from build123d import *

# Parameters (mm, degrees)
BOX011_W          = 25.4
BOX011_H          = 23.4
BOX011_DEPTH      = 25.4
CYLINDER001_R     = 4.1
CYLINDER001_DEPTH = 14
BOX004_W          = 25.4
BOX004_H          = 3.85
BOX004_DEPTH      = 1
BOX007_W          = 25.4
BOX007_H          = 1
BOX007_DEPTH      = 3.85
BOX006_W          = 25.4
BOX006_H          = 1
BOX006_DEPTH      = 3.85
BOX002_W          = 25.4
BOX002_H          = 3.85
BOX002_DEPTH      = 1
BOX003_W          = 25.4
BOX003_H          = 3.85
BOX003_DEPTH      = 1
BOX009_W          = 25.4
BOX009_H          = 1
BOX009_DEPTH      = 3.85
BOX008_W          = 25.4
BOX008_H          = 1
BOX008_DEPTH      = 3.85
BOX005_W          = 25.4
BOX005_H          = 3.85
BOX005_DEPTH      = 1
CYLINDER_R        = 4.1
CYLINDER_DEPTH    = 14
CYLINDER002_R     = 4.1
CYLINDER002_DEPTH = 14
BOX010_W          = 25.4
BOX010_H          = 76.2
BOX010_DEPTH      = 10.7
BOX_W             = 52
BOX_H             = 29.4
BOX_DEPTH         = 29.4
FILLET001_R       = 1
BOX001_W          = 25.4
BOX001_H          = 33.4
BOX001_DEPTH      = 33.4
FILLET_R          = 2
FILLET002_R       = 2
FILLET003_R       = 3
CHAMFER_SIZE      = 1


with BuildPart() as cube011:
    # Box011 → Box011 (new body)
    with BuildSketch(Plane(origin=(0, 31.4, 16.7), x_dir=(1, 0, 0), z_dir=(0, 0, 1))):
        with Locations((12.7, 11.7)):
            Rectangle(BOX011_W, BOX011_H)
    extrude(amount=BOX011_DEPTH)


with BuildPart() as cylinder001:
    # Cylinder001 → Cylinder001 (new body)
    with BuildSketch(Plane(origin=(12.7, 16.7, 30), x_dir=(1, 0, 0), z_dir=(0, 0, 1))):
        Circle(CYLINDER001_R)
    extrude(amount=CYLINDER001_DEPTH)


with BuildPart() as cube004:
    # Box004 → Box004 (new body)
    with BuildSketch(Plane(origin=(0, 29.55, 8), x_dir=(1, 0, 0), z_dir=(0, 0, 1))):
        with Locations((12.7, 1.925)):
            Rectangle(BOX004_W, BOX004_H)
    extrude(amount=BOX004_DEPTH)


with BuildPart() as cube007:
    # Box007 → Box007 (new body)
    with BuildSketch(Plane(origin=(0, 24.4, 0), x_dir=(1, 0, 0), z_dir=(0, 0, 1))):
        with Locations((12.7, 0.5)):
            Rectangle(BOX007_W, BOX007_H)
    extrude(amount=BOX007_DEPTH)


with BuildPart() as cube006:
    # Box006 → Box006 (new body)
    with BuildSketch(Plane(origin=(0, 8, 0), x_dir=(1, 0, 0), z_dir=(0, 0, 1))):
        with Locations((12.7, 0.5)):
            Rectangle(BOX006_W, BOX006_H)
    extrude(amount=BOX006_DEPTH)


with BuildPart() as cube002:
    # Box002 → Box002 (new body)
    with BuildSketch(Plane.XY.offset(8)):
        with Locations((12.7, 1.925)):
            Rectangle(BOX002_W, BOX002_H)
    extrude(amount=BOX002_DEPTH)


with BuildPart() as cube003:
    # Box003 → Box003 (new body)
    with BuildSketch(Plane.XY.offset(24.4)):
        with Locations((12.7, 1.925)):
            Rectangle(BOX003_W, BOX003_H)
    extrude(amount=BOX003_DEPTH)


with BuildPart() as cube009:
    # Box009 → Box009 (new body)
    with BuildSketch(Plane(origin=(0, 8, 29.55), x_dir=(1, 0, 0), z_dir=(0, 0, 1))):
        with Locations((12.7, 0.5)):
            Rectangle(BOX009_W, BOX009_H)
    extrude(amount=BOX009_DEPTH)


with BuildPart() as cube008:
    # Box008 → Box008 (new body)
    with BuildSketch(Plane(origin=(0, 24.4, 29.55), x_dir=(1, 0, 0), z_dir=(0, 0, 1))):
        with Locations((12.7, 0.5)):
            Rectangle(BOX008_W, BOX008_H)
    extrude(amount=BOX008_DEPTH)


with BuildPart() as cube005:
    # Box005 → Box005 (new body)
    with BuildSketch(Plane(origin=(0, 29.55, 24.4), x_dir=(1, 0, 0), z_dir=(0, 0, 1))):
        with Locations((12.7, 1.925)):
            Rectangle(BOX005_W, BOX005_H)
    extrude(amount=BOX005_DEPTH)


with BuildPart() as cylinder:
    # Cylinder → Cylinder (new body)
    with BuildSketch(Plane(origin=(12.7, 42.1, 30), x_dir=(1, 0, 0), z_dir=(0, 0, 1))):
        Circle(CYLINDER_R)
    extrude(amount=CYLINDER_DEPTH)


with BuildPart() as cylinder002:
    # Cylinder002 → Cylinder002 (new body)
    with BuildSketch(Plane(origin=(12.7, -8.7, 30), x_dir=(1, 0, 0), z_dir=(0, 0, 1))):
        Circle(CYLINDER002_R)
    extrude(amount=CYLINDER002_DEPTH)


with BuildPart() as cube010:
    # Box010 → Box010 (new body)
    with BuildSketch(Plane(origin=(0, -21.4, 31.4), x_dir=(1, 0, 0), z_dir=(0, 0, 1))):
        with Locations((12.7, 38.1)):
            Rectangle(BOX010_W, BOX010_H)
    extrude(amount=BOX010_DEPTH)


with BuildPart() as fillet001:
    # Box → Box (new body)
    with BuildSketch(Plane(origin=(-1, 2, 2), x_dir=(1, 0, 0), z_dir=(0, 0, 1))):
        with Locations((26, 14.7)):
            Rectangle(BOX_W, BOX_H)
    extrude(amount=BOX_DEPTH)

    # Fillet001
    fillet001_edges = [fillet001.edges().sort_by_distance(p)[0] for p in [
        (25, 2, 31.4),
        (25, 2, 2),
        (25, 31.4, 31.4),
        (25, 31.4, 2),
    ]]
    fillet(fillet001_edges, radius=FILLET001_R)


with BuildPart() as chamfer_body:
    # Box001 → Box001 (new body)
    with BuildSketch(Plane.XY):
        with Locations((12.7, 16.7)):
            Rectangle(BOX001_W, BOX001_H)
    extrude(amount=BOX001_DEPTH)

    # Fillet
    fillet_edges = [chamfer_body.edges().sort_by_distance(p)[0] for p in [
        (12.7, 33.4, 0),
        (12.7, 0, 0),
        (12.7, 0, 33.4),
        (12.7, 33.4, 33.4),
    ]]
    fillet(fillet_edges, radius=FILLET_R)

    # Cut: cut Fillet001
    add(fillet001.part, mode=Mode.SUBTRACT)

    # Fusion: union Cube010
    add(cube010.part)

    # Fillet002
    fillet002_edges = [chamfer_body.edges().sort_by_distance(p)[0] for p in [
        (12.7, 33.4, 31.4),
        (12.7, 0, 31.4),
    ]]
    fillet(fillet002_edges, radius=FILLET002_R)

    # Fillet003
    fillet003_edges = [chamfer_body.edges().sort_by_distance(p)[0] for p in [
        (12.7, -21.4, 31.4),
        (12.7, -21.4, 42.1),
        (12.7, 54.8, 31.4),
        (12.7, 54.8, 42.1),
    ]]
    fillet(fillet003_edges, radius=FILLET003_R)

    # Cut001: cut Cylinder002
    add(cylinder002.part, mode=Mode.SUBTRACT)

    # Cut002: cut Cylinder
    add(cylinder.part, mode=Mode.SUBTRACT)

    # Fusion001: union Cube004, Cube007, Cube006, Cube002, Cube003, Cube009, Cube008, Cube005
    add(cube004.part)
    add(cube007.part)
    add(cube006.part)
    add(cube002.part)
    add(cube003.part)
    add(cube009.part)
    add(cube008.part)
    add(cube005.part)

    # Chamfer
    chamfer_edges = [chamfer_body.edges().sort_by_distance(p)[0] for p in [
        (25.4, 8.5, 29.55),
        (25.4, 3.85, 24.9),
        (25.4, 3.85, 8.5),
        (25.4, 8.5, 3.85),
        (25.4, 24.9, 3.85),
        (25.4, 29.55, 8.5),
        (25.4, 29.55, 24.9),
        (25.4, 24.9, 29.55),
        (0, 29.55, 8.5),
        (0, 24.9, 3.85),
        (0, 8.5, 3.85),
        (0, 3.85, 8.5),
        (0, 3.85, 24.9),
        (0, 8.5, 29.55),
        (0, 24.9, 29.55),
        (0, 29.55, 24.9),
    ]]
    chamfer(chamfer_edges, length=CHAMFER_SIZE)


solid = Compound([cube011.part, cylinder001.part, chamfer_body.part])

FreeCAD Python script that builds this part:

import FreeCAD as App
import Part
import Sketcher

V = App.Vector
Q = App.Units.Quantity


def edges_at(feature, points):
    """Names of the edges that pass closest to the given points."""
    edges = feature.Shape.Edges
    near = lambda p: min(range(len(edges)), key=lambda i: edges[i].distToShape(Part.Vertex(*p))[0])
    return sorted({f"Edge{near(p) + 1}" for p in points})


def add_polygon(sketch, points):
    """Adds a closed chain of lines whose ends are joined by coincident constraints."""
    first, n = sketch.GeometryCount, len(points)
    for a, b in zip(points, points[1:] + points[:1]):
        sketch.addGeometry(Part.LineSegment(App.Vector(*a, 0), App.Vector(*b, 0)), False)
    for i in range(n):
        sketch.addConstraint(Sketcher.Constraint("Coincident", first + i, 2, first + (i + 1) % n, 1))

doc = App.newDocument("Part")
body = doc.addObject("PartDesign::Body", "Body")

# Sketch on XY plane
sketch1 = body.newObject("Sketcher::SketchObject", "Sketch")
sketch1.AttachmentSupport = (doc.getObject("XY_Plane"), [""])
sketch1.MapMode = "FlatFace"
sketch1.AttachmentOffset = App.Placement(V(0, 0, 16.7), App.Rotation())
add_polygon(sketch1, [(0, 55), (0, 31), (25, 31), (25, 55)])  # lines 0-3
sketch1.addConstraint(Sketcher.Constraint("Vertical", 0))
sketch1.addConstraint(Sketcher.Constraint("Horizontal", 1))
sketch1.addConstraint(Sketcher.Constraint("Vertical", 2))
sketch1.addConstraint(Sketcher.Constraint("Horizontal", 3))
sketch1.addConstraint(Sketcher.Constraint("PointOnObject", 0, 2, -2))
sketch1.addConstraint(Sketcher.Constraint("DistanceX", 1, 1, 1, 2, Q("25.4 mm")))
sketch1.addConstraint(Sketcher.Constraint("DistanceY", 0, 2, 0, 1, Q("23.4 mm")))
sketch1.addConstraint(Sketcher.Constraint("DistanceY", -1, 1, 0, 2, Q("31.4 mm")))
pad1 = body.newObject("PartDesign::Pad", "Pad")
pad1.Profile = sketch1
pad1.Length = 25.4
body2 = doc.addObject("PartDesign::Body", "Body001")

# Sketch on XY plane
sketch2 = body2.newObject("Sketcher::SketchObject", "Sketch001")
sketch2.AttachmentSupport = (doc.getObject("XY_Plane001"), [""])
sketch2.MapMode = "FlatFace"
sketch2.AttachmentOffset = App.Placement(V(0, 0, 30), App.Rotation())
sketch2.addGeometry(Part.Circle(V(12.7, 16.7, 0), V(0, 0, 1), 4.1), False)
sketch2.addConstraint(Sketcher.Constraint("Diameter", 0, Q("8.2 mm")))
sketch2.addConstraint(Sketcher.Constraint("DistanceX", -1, 1, 0, 3, Q("12.7 mm")))
sketch2.addConstraint(Sketcher.Constraint("DistanceY", -1, 1, 0, 3, Q("16.7 mm")))
pad2 = body2.newObject("PartDesign::Pad", "Pad001")
pad2.Profile = sketch2
pad2.Length = 14
body3 = doc.addObject("PartDesign::Body", "Body002")

# Sketch on XY plane
sketch3 = body3.newObject("Sketcher::SketchObject", "Sketch002")
sketch3.AttachmentSupport = (doc.getObject("XY_Plane002"), [""])
sketch3.MapMode = "FlatFace"
sketch3.AttachmentOffset = App.Placement(V(0, 0, 8), App.Rotation())
add_polygon(sketch3, [(0, 33.4), (0, 29.6), (25.4, 29.6), (25.4, 33.4)])  # lines 0-3
sketch3.addConstraint(Sketcher.Constraint("Vertical", 0))
sketch3.addConstraint(Sketcher.Constraint("Horizontal", 1))
sketch3.addConstraint(Sketcher.Constraint("Vertical", 2))
sketch3.addConstraint(Sketcher.Constraint("Horizontal", 3))
sketch3.addConstraint(Sketcher.Constraint("PointOnObject", 0, 2, -2))
sketch3.addConstraint(Sketcher.Constraint("DistanceX", 1, 1, 1, 2, Q("25.4 mm")))
sketch3.addConstraint(Sketcher.Constraint("DistanceY", 0, 2, 0, 1, Q("3.85 mm")))
sketch3.addConstraint(Sketcher.Constraint("DistanceY", -1, 1, 2, 2, Q("33.4 mm")))
pad3 = body3.newObject("PartDesign::Pad", "Pad002")
pad3.Profile = sketch3
pad3.Length = 1
body4 = doc.addObject("PartDesign::Body", "Body003")

# Sketch on XY plane
sketch4 = body4.newObject("Sketcher::SketchObject", "Sketch003")
sketch4.AttachmentSupport = (doc.getObject("XY_Plane003"), [""])
sketch4.MapMode = "FlatFace"
add_polygon(sketch4, [(0, 25.4), (0, 24.4), (25.4, 24.4), (25.4, 25.4)])  # lines 0-3
sketch4.addConstraint(Sketcher.Constraint("Vertical", 0))
sketch4.addConstraint(Sketcher.Constraint("Horizontal", 1))
sketch4.addConstraint(Sketcher.Constraint("Vertical", 2))
sketch4.addConstraint(Sketcher.Constraint("Horizontal", 3))
sketch4.addConstraint(Sketcher.Constraint("PointOnObject", 0, 2, -2))
sketch4.addConstraint(Sketcher.Constraint("DistanceY", 0, 2, 0, 1, Q("1 mm")))
sketch4.addConstraint(Sketcher.Constraint("DistanceX", 1, 1, 1, 2, Q("25.4 mm")))
sketch4.addConstraint(Sketcher.Constraint("DistanceY", -1, 1, 0, 2, Q("24.4 mm")))
pad4 = body4.newObject("PartDesign::Pad", "Pad003")
pad4.Profile = sketch4
pad4.Length = 3.85
body5 = doc.addObject("PartDesign::Body", "Body004")

# Sketch on XY plane
sketch5 = body5.newObject("Sketcher::SketchObject", "Sketch004")
sketch5.AttachmentSupport = (doc.getObject("XY_Plane004"), [""])
sketch5.MapMode = "FlatFace"
add_polygon(sketch5, [(0, 9), (0, 8), (25.4, 8), (25.4, 9)])  # lines 0-3
sketch5.addConstraint(Sketcher.Constraint("Vertical", 0))
sketch5.addConstraint(Sketcher.Constraint("Horizontal", 1))
sketch5.addConstraint(Sketcher.Constraint("Vertical", 2))
sketch5.addConstraint(Sketcher.Constraint("Horizontal", 3))
sketch5.addConstraint(Sketcher.Constraint("PointOnObject", 0, 2, -2))
sketch5.addConstraint(Sketcher.Constraint("DistanceY", 0, 2, 0, 1, Q("1 mm")))
sketch5.addConstraint(Sketcher.Constraint("DistanceX", 1, 1, 1, 2, Q("25.4 mm")))
sketch5.addConstraint(Sketcher.Constraint("DistanceY", -1, 1, 0, 2, Q("8 mm")))
pad5 = body5.newObject("PartDesign::Pad", "Pad004")
pad5.Profile = sketch5
pad5.Length = 3.85
body6 = doc.addObject("PartDesign::Body", "Body005")

# Sketch on XY plane
sketch6 = body6.newObject("Sketcher::SketchObject", "Sketch005")
sketch6.AttachmentSupport = (doc.getObject("XY_Plane005"), [""])
sketch6.MapMode = "FlatFace"
sketch6.AttachmentOffset = App.Placement(V(0, 0, 8), App.Rotation())
add_polygon(sketch6, [(0, 3.9), (0, 0), (25.4, 0), (25.4, 3.9)])  # lines 0-3
sketch6.addConstraint(Sketcher.Constraint("Vertical", 0))
sketch6.addConstraint(Sketcher.Constraint("Horizontal", 1))
sketch6.addConstraint(Sketcher.Constraint("Vertical", 2))
sketch6.addConstraint(Sketcher.Constraint("Horizontal", 3))
sketch6.addConstraint(Sketcher.Constraint("Coincident", 0, 2, -1, 1))
sketch6.addConstraint(Sketcher.Constraint("DistanceX", 1, 1, 1, 2, Q("25.4 mm")))
sketch6.addConstraint(Sketcher.Constraint("DistanceY", 0, 2, 0, 1, Q("3.85 mm")))
pad6 = body6.newObject("PartDesign::Pad", "Pad005")
pad6.Profile = sketch6
pad6.Length = 1
body7 = doc.addObject("PartDesign::Body", "Body006")

# Sketch on XY plane
sketch7 = body7.newObject("Sketcher::SketchObject", "Sketch006")
sketch7.AttachmentSupport = (doc.getObject("XY_Plane006"), [""])
sketch7.MapMode = "FlatFace"
sketch7.AttachmentOffset = App.Placement(V(0, 0, 24.4), App.Rotation())
add_polygon(sketch7, [(0, 3.9), (0, 0), (25.4, 0), (25.4, 3.9)])  # lines 0-3
sketch7.addConstraint(Sketcher.Constraint("Vertical", 0))
sketch7.addConstraint(Sketcher.Constraint("Horizontal", 1))
sketch7.addConstraint(Sketcher.Constraint("Vertical", 2))
sketch7.addConstraint(Sketcher.Constraint("Horizontal", 3))
sketch7.addConstraint(Sketcher.Constraint("Coincident", 0, 2, -1, 1))
sketch7.addConstraint(Sketcher.Constraint("DistanceX", 1, 1, 1, 2, Q("25.4 mm")))
sketch7.addConstraint(Sketcher.Constraint("DistanceY", 0, 2, 0, 1, Q("3.85 mm")))
pad7 = body7.newObject("PartDesign::Pad", "Pad006")
pad7.Profile = sketch7
pad7.Length = 1
body8 = doc.addObject("PartDesign::Body", "Body007")

# Sketch on XY plane
sketch8 = body8.newObject("Sketcher::SketchObject", "Sketch007")
sketch8.AttachmentSupport = (doc.getObject("XY_Plane007"), [""])
sketch8.MapMode = "FlatFace"
sketch8.AttachmentOffset = App.Placement(V(0, 0, 29.55), App.Rotation())
add_polygon(sketch8, [(0, 9), (0, 8), (25.4, 8), (25.4, 9)])  # lines 0-3
sketch8.addConstraint(Sketcher.Constraint("Vertical", 0))
sketch8.addConstraint(Sketcher.Constraint("Horizontal", 1))
sketch8.addConstraint(Sketcher.Constraint("Vertical", 2))
sketch8.addConstraint(Sketcher.Constraint("Horizontal", 3))
sketch8.addConstraint(Sketcher.Constraint("PointOnObject", 0, 2, -2))
sketch8.addConstraint(Sketcher.Constraint("DistanceY", 0, 2, 0, 1, Q("1 mm")))
sketch8.addConstraint(Sketcher.Constraint("DistanceX", 1, 1, 1, 2, Q("25.4 mm")))
sketch8.addConstraint(Sketcher.Constraint("DistanceY", -1, 1, 0, 2, Q("8 mm")))
pad8 = body8.newObject("PartDesign::Pad", "Pad007")
pad8.Profile = sketch8
pad8.Length = 3.85
body9 = doc.addObject("PartDesign::Body", "Body008")

# Sketch on XY plane
sketch9 = body9.newObject("Sketcher::SketchObject", "Sketch008")
sketch9.AttachmentSupport = (doc.getObject("XY_Plane008"), [""])
sketch9.MapMode = "FlatFace"
sketch9.AttachmentOffset = App.Placement(V(0, 0, 29.55), App.Rotation())
add_polygon(sketch9, [(0, 25.4), (0, 24.4), (25.4, 24.4), (25.4, 25.4)])  # lines 0-3
sketch9.addConstraint(Sketcher.Constraint("Vertical", 0))
sketch9.addConstraint(Sketcher.Constraint("Horizontal", 1))
sketch9.addConstraint(Sketcher.Constraint("Vertical", 2))
sketch9.addConstraint(Sketcher.Constraint("Horizontal", 3))
sketch9.addConstraint(Sketcher.Constraint("PointOnObject", 0, 2, -2))
sketch9.addConstraint(Sketcher.Constraint("DistanceY", 0, 2, 0, 1, Q("1 mm")))
sketch9.addConstraint(Sketcher.Constraint("DistanceX", 1, 1, 1, 2, Q("25.4 mm")))
sketch9.addConstraint(Sketcher.Constraint("DistanceY", -1, 1, 0, 2, Q("24.4 mm")))
pad9 = body9.newObject("PartDesign::Pad", "Pad008")
pad9.Profile = sketch9
pad9.Length = 3.85
body10 = doc.addObject("PartDesign::Body", "Body009")

# Sketch on XY plane
sketch10 = body10.newObject("Sketcher::SketchObject", "Sketch009")
sketch10.AttachmentSupport = (doc.getObject("XY_Plane009"), [""])
sketch10.MapMode = "FlatFace"
sketch10.AttachmentOffset = App.Placement(V(0, 0, 24.4), App.Rotation())
add_polygon(sketch10, [(0, 33.4), (0, 29.6), (25.4, 29.6), (25.4, 33.4)])  # lines 0-3
sketch10.addConstraint(Sketcher.Constraint("Vertical", 0))
sketch10.addConstraint(Sketcher.Constraint("Horizontal", 1))
sketch10.addConstraint(Sketcher.Constraint("Vertical", 2))
sketch10.addConstraint(Sketcher.Constraint("Horizontal", 3))
sketch10.addConstraint(Sketcher.Constraint("PointOnObject", 0, 2, -2))
sketch10.addConstraint(Sketcher.Constraint("DistanceX", 1, 1, 1, 2, Q("25.4 mm")))
sketch10.addConstraint(Sketcher.Constraint("DistanceY", 0, 2, 0, 1, Q("3.85 mm")))
sketch10.addConstraint(Sketcher.Constraint("DistanceY", -1, 1, 2, 2, Q("33.4 mm")))
pad10 = body10.newObject("PartDesign::Pad", "Pad009")
pad10.Profile = sketch10
pad10.Length = 1
body11 = doc.addObject("PartDesign::Body", "Body010")

# Sketch on XY plane
sketch11 = body11.newObject("Sketcher::SketchObject", "Sketch010")
sketch11.AttachmentSupport = (doc.getObject("XY_Plane010"), [""])
sketch11.MapMode = "FlatFace"
sketch11.AttachmentOffset = App.Placement(V(0, 0, 30), App.Rotation())
sketch11.addGeometry(Part.Circle(V(12.7, 42.1, 0), V(0, 0, 1), 4.1), False)
sketch11.addConstraint(Sketcher.Constraint("Diameter", 0, Q("8.2 mm")))
sketch11.addConstraint(Sketcher.Constraint("DistanceX", -1, 1, 0, 3, Q("12.7 mm")))
sketch11.addConstraint(Sketcher.Constraint("DistanceY", -1, 1, 0, 3, Q("42.1 mm")))
pad11 = body11.newObject("PartDesign::Pad", "Pad010")
pad11.Profile = sketch11
pad11.Length = 14
body12 = doc.addObject("PartDesign::Body", "Body011")

# Sketch on XY plane
sketch12 = body12.newObject("Sketcher::SketchObject", "Sketch011")
sketch12.AttachmentSupport = (doc.getObject("XY_Plane011"), [""])
sketch12.MapMode = "FlatFace"
sketch12.AttachmentOffset = App.Placement(V(0, 0, 30), App.Rotation())
sketch12.addGeometry(Part.Circle(V(12.7, -8.7, 0), V(0, 0, 1), 4.1), False)
sketch12.addConstraint(Sketcher.Constraint("Diameter", 0, Q("8.2 mm")))
sketch12.addConstraint(Sketcher.Constraint("DistanceX", -1, 1, 0, 3, Q("12.7 mm")))
sketch12.addConstraint(Sketcher.Constraint("DistanceY", 0, 3, -1, 1, Q("8.7 mm")))
pad12 = body12.newObject("PartDesign::Pad", "Pad011")
pad12.Profile = sketch12
pad12.Length = 14
body13 = doc.addObject("PartDesign::Body", "Body012")

# Sketch on XY plane
sketch13 = body13.newObject("Sketcher::SketchObject", "Sketch012")
sketch13.AttachmentSupport = (doc.getObject("XY_Plane012"), [""])
sketch13.MapMode = "FlatFace"
sketch13.AttachmentOffset = App.Placement(V(0, 0, 31.4), App.Rotation())
add_polygon(sketch13, [(0, 55), (0, -21), (25, -21), (25, 55)])  # lines 0-3
sketch13.addConstraint(Sketcher.Constraint("Vertical", 0))
sketch13.addConstraint(Sketcher.Constraint("Horizontal", 1))
sketch13.addConstraint(Sketcher.Constraint("Vertical", 2))
sketch13.addConstraint(Sketcher.Constraint("Horizontal", 3))
sketch13.addConstraint(Sketcher.Constraint("PointOnObject", 0, 2, -2))
sketch13.addConstraint(Sketcher.Constraint("DistanceX", 1, 1, 1, 2, Q("25.4 mm")))
sketch13.addConstraint(Sketcher.Constraint("DistanceY", 0, 2, 0, 1, Q("76.2 mm")))
sketch13.addConstraint(Sketcher.Constraint("DistanceY", 0, 2, -1, 1, Q("21.4 mm")))
pad13 = body13.newObject("PartDesign::Pad", "Pad012")
pad13.Profile = sketch13
pad13.Length = 10.7
body14 = doc.addObject("PartDesign::Body", "Body013")

# Sketch on XY plane
sketch14 = body14.newObject("Sketcher::SketchObject", "Sketch013")
sketch14.AttachmentSupport = (doc.getObject("XY_Plane013"), [""])
sketch14.MapMode = "FlatFace"
sketch14.AttachmentOffset = App.Placement(V(0, 0, 2), App.Rotation())
add_polygon(sketch14, [(-1, 31), (-1, 2), (51, 2), (51, 31)])  # lines 0-3
sketch14.addConstraint(Sketcher.Constraint("Vertical", 0))
sketch14.addConstraint(Sketcher.Constraint("Horizontal", 1))
sketch14.addConstraint(Sketcher.Constraint("Vertical", 2))
sketch14.addConstraint(Sketcher.Constraint("Horizontal", 3))
sketch14.addConstraint(Sketcher.Constraint("DistanceX", 1, 1, 1, 2, Q("52 mm")))
sketch14.addConstraint(Sketcher.Constraint("DistanceY", 0, 2, 0, 1, Q("29.4 mm")))
sketch14.addConstraint(Sketcher.Constraint("DistanceX", 0, 2, -1, 1, Q("1 mm")))
sketch14.addConstraint(Sketcher.Constraint("DistanceY", -1, 1, 0, 2, Q("2 mm")))
pad14 = body14.newObject("PartDesign::Pad", "Pad013")
pad14.Profile = sketch14
pad14.Length = 29.4
doc.recompute()

fillet = body14.newObject("PartDesign::Fillet", "Fillet")
fillet.Base = (pad14, edges_at(pad14, [
    (25, 2, 31.4),
    (25, 2, 2),
    (25, 31.4, 31.4),
    (25, 31.4, 2),
]))
fillet.Radius = 1
body15 = doc.addObject("PartDesign::Body", "Body014")

# Sketch on XY plane
sketch15 = body15.newObject("Sketcher::SketchObject", "Sketch014")
sketch15.AttachmentSupport = (doc.getObject("XY_Plane014"), [""])
sketch15.MapMode = "FlatFace"
add_polygon(sketch15, [(0, 33), (0, 0), (25, 0), (25, 33)])  # lines 0-3
sketch15.addConstraint(Sketcher.Constraint("Vertical", 0))
sketch15.addConstraint(Sketcher.Constraint("Horizontal", 1))
sketch15.addConstraint(Sketcher.Constraint("Vertical", 2))
sketch15.addConstraint(Sketcher.Constraint("Horizontal", 3))
sketch15.addConstraint(Sketcher.Constraint("Coincident", 0, 2, -1, 1))
sketch15.addConstraint(Sketcher.Constraint("DistanceX", 1, 1, 1, 2, Q("25.4 mm")))
sketch15.addConstraint(Sketcher.Constraint("DistanceY", 0, 2, 0, 1, Q("33.4 mm")))
pad15 = body15.newObject("PartDesign::Pad", "Pad014")
pad15.Profile = sketch15
pad15.Length = 33.4
doc.recompute()

fillet2 = body15.newObject("PartDesign::Fillet", "Fillet001")
fillet2.Base = (pad15, edges_at(pad15, [
    (12.7, 33.4, 0),
    (12.7, 0, 0),
    (12.7, 0, 33.4),
    (12.7, 33.4, 33.4),
]))
fillet2.Radius = 2
doc.recompute()

boolean = body15.newObject("PartDesign::Boolean", "Boolean")
boolean.Type = "Cut"
boolean.addObjects([body14])
doc.recompute()

boolean2 = body15.newObject("PartDesign::Boolean", "Boolean001")
boolean2.Type = "Fuse"
boolean2.addObjects([body13])
doc.recompute()

fillet3 = body15.newObject("PartDesign::Fillet", "Fillet002")
fillet3.Base = (boolean2, edges_at(boolean2, [(12.7, 33.4, 31.4), (12.7, 0, 31.4)]))
fillet3.Radius = 2
doc.recompute()

fillet4 = body15.newObject("PartDesign::Fillet", "Fillet003")
fillet4.Base = (fillet3, edges_at(fillet3, [
    (12.7, -21.4, 31.4),
    (12.7, -21.4, 42.1),
    (12.7, 54.8, 31.4),
    (12.7, 54.8, 42.1),
]))
fillet4.Radius = 3
doc.recompute()

boolean3 = body15.newObject("PartDesign::Boolean", "Boolean002")
boolean3.Type = "Cut"
boolean3.addObjects([body12])
doc.recompute()

boolean4 = body15.newObject("PartDesign::Boolean", "Boolean003")
boolean4.Type = "Cut"
boolean4.addObjects([body11])
doc.recompute()

boolean5 = body15.newObject("PartDesign::Boolean", "Boolean004")
boolean5.Type = "Fuse"
boolean5.addObjects([body3])
doc.recompute()

boolean6 = body15.newObject("PartDesign::Boolean", "Boolean005")
boolean6.Type = "Fuse"
boolean6.addObjects([body4])
doc.recompute()

boolean7 = body15.newObject("PartDesign::Boolean", "Boolean006")
boolean7.Type = "Fuse"
boolean7.addObjects([body5])
doc.recompute()

boolean8 = body15.newObject("PartDesign::Boolean", "Boolean007")
boolean8.Type = "Fuse"
boolean8.addObjects([body6])
doc.recompute()

boolean9 = body15.newObject("PartDesign::Boolean", "Boolean008")
boolean9.Type = "Fuse"
boolean9.addObjects([body7])
doc.recompute()

boolean10 = body15.newObject("PartDesign::Boolean", "Boolean009")
boolean10.Type = "Fuse"
boolean10.addObjects([body8])
doc.recompute()

boolean11 = body15.newObject("PartDesign::Boolean", "Boolean010")
boolean11.Type = "Fuse"
boolean11.addObjects([body9])
doc.recompute()

boolean12 = body15.newObject("PartDesign::Boolean", "Boolean011")
boolean12.Type = "Fuse"
boolean12.addObjects([body10])
doc.recompute()

chamfer = body15.newObject("PartDesign::Chamfer", "Chamfer")
chamfer.Base = (boolean12, edges_at(boolean12, [
    (25.4, 8.5, 29.55),
    (25.4, 3.85, 24.9),
    (25.4, 3.85, 8.5),
    (25.4, 8.5, 3.85),
    (25.4, 24.9, 3.85),
    (25.4, 29.55, 8.5),
    (25.4, 29.55, 24.9),
    (25.4, 24.9, 29.55),
    (0, 29.55, 8.5),
    (0, 24.9, 3.85),
    (0, 8.5, 3.85),
    (0, 3.85, 8.5),
    (0, 3.85, 24.9),
    (0, 8.5, 29.55),
    (0, 24.9, 29.55),
    (0, 29.55, 24.9),
]))
chamfer.Size = 1

doc.recompute()
